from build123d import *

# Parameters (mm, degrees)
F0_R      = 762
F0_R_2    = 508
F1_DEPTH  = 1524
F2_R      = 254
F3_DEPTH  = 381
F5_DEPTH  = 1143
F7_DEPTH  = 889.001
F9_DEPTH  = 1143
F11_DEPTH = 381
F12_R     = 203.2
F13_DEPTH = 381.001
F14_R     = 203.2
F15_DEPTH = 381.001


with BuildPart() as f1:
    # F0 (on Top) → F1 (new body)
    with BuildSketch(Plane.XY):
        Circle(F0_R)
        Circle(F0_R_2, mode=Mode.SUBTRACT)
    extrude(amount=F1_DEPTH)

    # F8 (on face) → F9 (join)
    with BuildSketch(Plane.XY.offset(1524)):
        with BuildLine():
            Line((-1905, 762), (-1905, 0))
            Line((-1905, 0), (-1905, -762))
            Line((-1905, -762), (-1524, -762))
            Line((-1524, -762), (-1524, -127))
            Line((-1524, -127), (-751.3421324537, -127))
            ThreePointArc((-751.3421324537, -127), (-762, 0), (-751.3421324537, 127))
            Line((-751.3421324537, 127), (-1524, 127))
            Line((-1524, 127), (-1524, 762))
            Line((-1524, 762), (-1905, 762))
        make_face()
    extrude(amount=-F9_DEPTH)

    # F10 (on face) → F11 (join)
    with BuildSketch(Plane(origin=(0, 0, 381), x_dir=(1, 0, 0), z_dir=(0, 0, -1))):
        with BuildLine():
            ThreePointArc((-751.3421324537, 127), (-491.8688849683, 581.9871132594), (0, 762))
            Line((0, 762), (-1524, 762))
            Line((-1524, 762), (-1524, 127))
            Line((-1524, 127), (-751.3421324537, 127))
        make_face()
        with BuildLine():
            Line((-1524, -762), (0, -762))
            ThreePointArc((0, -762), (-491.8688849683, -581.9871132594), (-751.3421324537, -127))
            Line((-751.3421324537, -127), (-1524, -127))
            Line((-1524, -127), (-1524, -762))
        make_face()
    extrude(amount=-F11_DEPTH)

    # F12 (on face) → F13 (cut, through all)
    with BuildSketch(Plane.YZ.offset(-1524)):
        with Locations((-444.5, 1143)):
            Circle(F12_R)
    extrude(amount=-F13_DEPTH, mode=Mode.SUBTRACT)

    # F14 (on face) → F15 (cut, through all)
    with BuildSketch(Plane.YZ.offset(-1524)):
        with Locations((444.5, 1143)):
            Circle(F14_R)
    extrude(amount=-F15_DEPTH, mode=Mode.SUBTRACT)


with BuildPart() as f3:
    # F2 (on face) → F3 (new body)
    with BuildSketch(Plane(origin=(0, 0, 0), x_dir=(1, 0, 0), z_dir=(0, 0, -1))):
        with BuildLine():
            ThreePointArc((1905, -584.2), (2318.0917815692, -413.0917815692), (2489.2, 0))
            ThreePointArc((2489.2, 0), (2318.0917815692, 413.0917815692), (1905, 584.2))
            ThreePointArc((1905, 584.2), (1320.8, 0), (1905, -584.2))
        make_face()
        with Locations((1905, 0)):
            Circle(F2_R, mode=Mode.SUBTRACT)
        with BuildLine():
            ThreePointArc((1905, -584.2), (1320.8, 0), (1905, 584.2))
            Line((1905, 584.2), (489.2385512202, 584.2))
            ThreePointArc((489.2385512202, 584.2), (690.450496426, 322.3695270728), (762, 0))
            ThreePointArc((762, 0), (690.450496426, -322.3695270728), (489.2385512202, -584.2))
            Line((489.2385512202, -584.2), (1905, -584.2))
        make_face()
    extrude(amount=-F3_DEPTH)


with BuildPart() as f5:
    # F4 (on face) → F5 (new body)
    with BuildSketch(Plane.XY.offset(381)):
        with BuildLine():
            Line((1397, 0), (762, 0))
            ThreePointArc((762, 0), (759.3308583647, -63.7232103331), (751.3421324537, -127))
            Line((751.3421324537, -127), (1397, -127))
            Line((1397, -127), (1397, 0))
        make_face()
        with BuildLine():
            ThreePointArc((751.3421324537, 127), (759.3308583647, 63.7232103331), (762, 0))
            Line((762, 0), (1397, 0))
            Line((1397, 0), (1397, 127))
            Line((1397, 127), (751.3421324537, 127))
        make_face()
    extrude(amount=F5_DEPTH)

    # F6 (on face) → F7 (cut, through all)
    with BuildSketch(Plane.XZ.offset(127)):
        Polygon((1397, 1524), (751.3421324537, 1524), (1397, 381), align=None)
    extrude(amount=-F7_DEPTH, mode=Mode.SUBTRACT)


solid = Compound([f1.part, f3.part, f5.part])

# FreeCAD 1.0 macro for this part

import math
import FreeCAD as App
import Part
import Sketcher

V = App.Vector
Q = App.Units.Quantity


def add_polygon(sketch, points):
    """Adds a closed chain of lines whose ends are joined by coincident constraints."""
    first, n = sketch.GeometryCount, len(points)
    for a, b in zip(points, points[1:] + points[:1]):
        sketch.addGeometry(Part.LineSegment(App.Vector(*a, 0), App.Vector(*b, 0)), False)
    for i in range(n):
        sketch.addConstraint(Sketcher.Constraint("Coincident", first + i, 2, first + (i + 1) % n, 1))

doc = App.newDocument("Part")
body = doc.addObject("PartDesign::Body", "Body")

# Sketch on XY plane
sketch1 = body.newObject("Sketcher::SketchObject", "Sketch")
sketch1.AttachmentSupport = (doc.getObject("XY_Plane"), [""])
sketch1.MapMode = "FlatFace"
sketch1.addGeometry(Part.Circle(V(0, 0, 0), V(0, 0, 1), 762), False)
sketch1.addGeometry(Part.Circle(V(0, 0, 0), V(0, 0, 1), 508), False)
sketch1.addConstraint(Sketcher.Constraint("Coincident", 0, 3, -1, 1))
sketch1.addConstraint(Sketcher.Constraint("Coincident", 1, 3, -1, 1))
sketch1.addConstraint(Sketcher.Constraint("Diameter", 0, Q("60 in")))
sketch1.addConstraint(Sketcher.Constraint("Diameter", 1, Q("40 in")))
pad1 = body.newObject("PartDesign::Pad", "Pad")
pad1.Profile = sketch1
pad1.Length = Q("60 in")

# Sketch on XY plane
sketch2 = body.newObject("Sketcher::SketchObject", "Sketch001")
sketch2.AttachmentSupport = (doc.getObject("XY_Plane"), [""])
sketch2.MapMode = "FlatFace"
sketch2.AttachmentOffset = App.Placement(V(0, 0, 60 * 25.4), App.Rotation())
sketch2.addGeometry(Part.LineSegment(V(-1905, 762, 0), V(-1905, -762, 0)), False)
sketch2.addGeometry(Part.LineSegment(V(-1905, -762, 0), V(-1524, -762, 0)), False)
sketch2.addGeometry(Part.LineSegment(V(-1524, -762, 0), V(-1524, -127, 0)), False)
sketch2.addGeometry(Part.LineSegment(V(-1524, -127, 0), V(-751, -127, 0)), False)
sketch2.addGeometry(Part.ArcOfCircle(Part.Circle(V(0, 0, 0), V(0, 0, 1), 762), math.radians(170.41), math.radians(189.59)), False)
sketch2.addGeometry(Part.LineSegment(V(-751, 127, 0), V(-1524, 127, 0)), False)
sketch2.addGeometry(Part.LineSegment(V(-1524, 127, 0), V(-1524, 762, 0)), False)
sketch2.addGeometry(Part.LineSegment(V(-1524, 762, 0), V(-1905, 762, 0)), False)
sketch2.addConstraint(Sketcher.Constraint("Coincident", 0, 2, 1, 1))
sketch2.addConstraint(Sketcher.Constraint("Coincident", 1, 2, 2, 1))
sketch2.addConstraint(Sketcher.Constraint("Coincident", 2, 2, 3, 1))
sketch2.addConstraint(Sketcher.Constraint("Coincident", 3, 2, 4, 2))
sketch2.addConstraint(Sketcher.Constraint("Coincident", 4, 1, 5, 1))
sketch2.addConstraint(Sketcher.Constraint("Coincident", 5, 2, 6, 1))
sketch2.addConstraint(Sketcher.Constraint("Coincident", 6, 2, 7, 1))
sketch2.addConstraint(Sketcher.Constraint("Coincident", 7, 2, 0, 1))
sketch2.addConstraint(Sketcher.Constraint("Vertical", 0))
sketch2.addConstraint(Sketcher.Constraint("Horizontal", 1))
sketch2.addConstraint(Sketcher.Constraint("Vertical", 2))
sketch2.addConstraint(Sketcher.Constraint("Horizontal", 3))
sketch2.addConstraint(Sketcher.Constraint("Horizontal", 5))
sketch2.addConstraint(Sketcher.Constraint("Vertical", 6))
sketch2.addConstraint(Sketcher.Constraint("Horizontal", 7))
sketch2.addConstraint(Sketcher.Constraint("Coincident", 4, 3, -1, 1))
sketch2.addConstraint(Sketcher.Constraint("Symmetric", 2, 2, 5, 2, -1))
sketch2.addConstraint(Sketcher.Constraint("Equal", 2, 6))
sketch2.addConstraint(Sketcher.Constraint("Radius", 4, Q("30 in")))
sketch2.addConstraint(Sketcher.Constraint("DistanceX", 1, 1, 1, 2, Q("15 in")))
sketch2.addConstraint(Sketcher.Constraint("DistanceY", 0, 2, 0, 1, Q("60 in")))
sketch2.addConstraint(Sketcher.Constraint("DistanceY", 2, 1, 2, 2, Q("25 in")))
sketch2.addConstraint(Sketcher.Constraint("DistanceX", 0, 2, -1, 1, Q("75 in")))
pad2 = body.newObject("PartDesign::Pad", "Pad001")
pad2.Profile = sketch2
pad2.Length = Q("45 in")
pad2.Reversed = True

# Sketch on XY plane
sketch3 = body.newObject("Sketcher::SketchObject", "Sketch002")
sketch3.AttachmentSupport = (doc.getObject("XY_Plane"), [""])
sketch3.MapMode = "FlatFace"
sketch3.AttachmentOffset = App.Placement(V(0, 0, 15 * 25.4), App.Rotation())
sketch3.addGeometry(Part.ArcOfCircle(Part.Circle(V(0, 0, 0), V(0, 0, 1), 762), math.radians(-170), math.radians(-90)), False)
sketch3.addGeometry(Part.LineSegment(V(0, -762, 0), V(-1524, -762, 0)), False)
sketch3.addGeometry(Part.LineSegment(V(-1524, -762, 0), V(-1524, -127, 0)), False)
sketch3.addGeometry(Part.LineSegment(V(-1524, -127, 0), V(-751, -127, 0)), False)
sketch3.addGeometry(Part.LineSegment(V(-1524, 762, 0), V(0, 762, 0)), False)
sketch3.addGeometry(Part.ArcOfCircle(Part.Circle(V(0, 0, 0), V(0, 0, 1), 762), math.radians(90), math.radians(170)), False)
sketch3.addGeometry(Part.LineSegment(V(-751, 127, 0), V(-1524, 127, 0)), False)
sketch3.addGeometry(Part.LineSegment(V(-1524, 127, 0), V(-1524, 762, 0)), False)
sketch3.addConstraint(Sketcher.Constraint("Tangent", 0, 2, 1, 1))
sketch3.addConstraint(Sketcher.Constraint("Coincident", 1, 2, 2, 1))
sketch3.addConstraint(Sketcher.Constraint("Coincident", 2, 2, 3, 1))
sketch3.addConstraint(Sketcher.Constraint("Coincident", 3, 2, 0, 1))
sketch3.addConstraint(Sketcher.Constraint("Tangent", 4, 2, 5, 1))
sketch3.addConstraint(Sketcher.Constraint("Coincident", 5, 2, 6, 1))
sketch3.addConstraint(Sketcher.Constraint("Coincident", 6, 2, 7, 1))
sketch3.addConstraint(Sketcher.Constraint("Coincident", 7, 2, 4, 1))
sketch3.addConstraint(Sketcher.Constraint("Horizontal", 1))
sketch3.addConstraint(Sketcher.Constraint("Vertical", 2))
sketch3.addConstraint(Sketcher.Constraint("Horizontal", 3))
sketch3.addConstraint(Sketcher.Constraint("Horizontal", 4))
sketch3.addConstraint(Sketcher.Constraint("Horizontal", 6))
sketch3.addConstraint(Sketcher.Constraint("Vertical", 7))
sketch3.addConstraint(Sketcher.Constraint("Coincident", 0, 3, -1, 1))
sketch3.addConstraint(Sketcher.Constraint("Coincident", 5, 3, -1, 1))
sketch3.addConstraint(Sketcher.Constraint("Equal", 0, 5))
sketch3.addConstraint(Sketcher.Constraint("Symmetric", 2, 2, 6, 2, -1))
sketch3.addConstraint(Sketcher.Constraint("Radius", 0, Q("30 in")))
sketch3.addConstraint(Sketcher.Constraint("DistanceX", 1, 2, 1, 1, Q("60 in")))
sketch3.addConstraint(Sketcher.Constraint("DistanceY", 2, 1, 2, 2, Q("25 in")))
pad3 = body.newObject("PartDesign::Pad", "Pad002")
pad3.Profile = sketch3
pad3.Length = Q("15 in")

# Sketch on YZ plane
sketch4 = body.newObject("Sketcher::SketchObject", "Sketch003")
sketch4.AttachmentSupport = (doc.getObject("YZ_Plane"), [""])
sketch4.MapMode = "FlatFace"
sketch4.AttachmentOffset = App.Placement(V(0, 0, -60 * 25.4), App.Rotation())
sketch4.addGeometry(Part.Circle(V(-444, 1143, 0), V(0, 0, 1), 203), False)
sketch4.addConstraint(Sketcher.Constraint("Diameter", 0, Q("16 in")))
sketch4.addConstraint(Sketcher.Constraint("DistanceY", -1, 1, 0, 3, Q("45 in")))
sketch4.addConstraint(Sketcher.Constraint("DistanceX", 0, 3, -1, 1, Q("17.5 in")))
pocket1 = body.newObject("PartDesign::Pocket", "Pocket")
pocket1.Profile = sketch4
pocket1.Type = "ThroughAll"

# Sketch on YZ plane
sketch5 = body.newObject("Sketcher::SketchObject", "Sketch004")
sketch5.AttachmentSupport = (doc.getObject("YZ_Plane"), [""])
sketch5.MapMode = "FlatFace"
sketch5.AttachmentOffset = App.Placement(V(0, 0, -60 * 25.4), App.Rotation())
sketch5.addGeometry(Part.Circle(V(444, 1143, 0), V(0, 0, 1), 203), False)
sketch5.addConstraint(Sketcher.Constraint("Diameter", 0, Q("16 in")))
sketch5.addConstraint(Sketcher.Constraint("DistanceY", -1, 1, 0, 3, Q("45 in")))
sketch5.addConstraint(Sketcher.Constraint("DistanceX", -1, 1, 0, 3, Q("17.5 in")))
pocket2 = body.newObject("PartDesign::Pocket", "Pocket001")
pocket2.Profile = sketch5
pocket2.Type = "ThroughAll"
body2 = doc.addObject("PartDesign::Body", "Body001")

# Sketch on XY plane
sketch6 = body2.newObject("Sketcher::SketchObject", "Sketch005")
sketch6.AttachmentSupport = (doc.getObject("XY_Plane001"), [""])
sketch6.MapMode = "FlatFace"
sketch6.addGeometry(Part.ArcOfCircle(Part.Circle(V(1905, 0, 0), V(0, 0, 1), 584), math.radians(-90), math.radians(90)), False)
sketch6.addGeometry(Part.LineSegment(V(1905, -584, 0), V(489, -584, 0)), False)
sketch6.addGeometry(Part.ArcOfCircle(Part.Circle(V(0, 0, 0), V(0, 0, 1), 762), math.radians(-50), math.radians(50)), False)
sketch6.addGeometry(Part.LineSegment(V(489, 584, 0), V(1905, 584, 0)), False)
sketch6.addGeometry(Part.Circle(V(1905, 0, 0), V(0, 0, 1), 254), False)
sketch6.addConstraint(Sketcher.Constraint("Tangent", 0, 1, 1, 1))
sketch6.addConstraint(Sketcher.Constraint("Coincident", 1, 2, 2, 1))
sketch6.addConstraint(Sketcher.Constraint("Coincident", 2, 2, 3, 1))
sketch6.addConstraint(Sketcher.Constraint("Tangent", 3, 2, 0, 2))
sketch6.addConstraint(Sketcher.Constraint("Horizontal", 1))
sketch6.addConstraint(Sketcher.Constraint("Horizontal", 3))
sketch6.addConstraint(Sketcher.Constraint("Coincident", 2, 3, -1, 1))
sketch6.addConstraint(Sketcher.Constraint("Coincident", 4, 3, 0, 3))
sketch6.addConstraint(Sketcher.Constraint("PointOnObject", 0, 3, -1))
sketch6.addConstraint(Sketcher.Constraint("Diameter", 4, Q("20 in")))
sketch6.addConstraint(Sketcher.Constraint("Radius", 0, Q("23 in")))
sketch6.addConstraint(Sketcher.Constraint("Radius", 2, Q("30 in")))
sketch6.addConstraint(Sketcher.Constraint("DistanceX", -1, 1, 0, 3, Q("75 in")))
pad4 = body2.newObject("PartDesign::Pad", "Pad003")
pad4.Profile = sketch6
pad4.Length = Q("15 in")
body3 = doc.addObject("PartDesign::Body", "Body002")

# Sketch on XY plane
sketch7 = body3.newObject("Sketcher::SketchObject", "Sketch006")
sketch7.AttachmentSupport = (doc.getObject("XY_Plane002"), [""])
sketch7.MapMode = "FlatFace"
sketch7.AttachmentOffset = App.Placement(V(0, 0, 15 * 25.4), App.Rotation())
sketch7.addGeometry(Part.LineSegment(V(751, -127, 0), V(1397, -127, 0)), False)
sketch7.addGeometry(Part.LineSegment(V(1397, -127, 0), V(1397, 127, 0)), False)
sketch7.addGeometry(Part.LineSegment(V(1397, 127, 0), V(751, 127, 0)), False)
sketch7.addGeometry(Part.ArcOfCircle(Part.Circle(V(0, 0, 0), V(0, 0, 1), 762), math.radians(-9.59), math.radians(9.59)), False)
sketch7.addConstraint(Sketcher.Constraint("Coincident", 0, 2, 1, 1))
sketch7.addConstraint(Sketcher.Constraint("Coincident", 1, 2, 2, 1))
sketch7.addConstraint(Sketcher.Constraint("Coincident", 2, 2, 3, 2))
sketch7.addConstraint(Sketcher.Constraint("Coincident", 3, 1, 0, 1))
sketch7.addConstraint(Sketcher.Constraint("Horizontal", 0))
sketch7.addConstraint(Sketcher.Constraint("Vertical", 1))
sketch7.addConstraint(Sketcher.Constraint("Horizontal", 2))
sketch7.addConstraint(Sketcher.Constraint("Coincident", 3, 3, -1, 1))
sketch7.addConstraint(Sketcher.Constraint("Equal", 0, 2))
sketch7.addConstraint(Sketcher.Constraint("Radius", 3, Q("30 in")))
sketch7.addConstraint(Sketcher.Constraint("DistanceY", 1, 1, 1, 2, Q("10 in")))
sketch7.addConstraint(Sketcher.Constraint("DistanceX", -1, 1, 0, 2, Q("55 in")))
pad5 = body3.newObject("PartDesign::Pad", "Pad004")
pad5.Profile = sketch7
pad5.Length = Q("45 in")

# Sketch on XZ plane
sketch8 = body3.newObject("Sketcher::SketchObject", "Sketch007")
sketch8.AttachmentSupport = (doc.getObject("XZ_Plane002"), [""])
sketch8.MapMode = "FlatFace"
sketch8.AttachmentOffset = App.Placement(V(0, 0, 5 * 25.4), App.Rotation())
add_polygon(sketch8, [(1397, 1524), (751, 1524), (1397, 381)])  # lines 0-2
sketch8.addConstraint(Sketcher.Constraint("Horizontal", 0))
sketch8.addConstraint(Sketcher.Constraint("Vertical", 2))
sketch8.addConstraint(Sketcher.Constraint("DistanceY", 2, 1, 2, 2, Q("45 in")))
sketch8.addConstraint(Sketcher.Constraint("DistanceY", -1, 1, 0, 2, Q("60 in")))
sketch8.addConstraint(Sketcher.Constraint("DistanceX", -1, 1, 1, 2, Q("55 in")))
sketch8.addConstraint(Sketcher.Constraint("DistanceX", 0, 2, 0, 1, Q("645.657868 mm")))
pocket3 = body3.newObject("PartDesign::Pocket", "Pocket002")
pocket3.Profile = sketch8
pocket3.Type = "ThroughAll"

doc.recompute()
